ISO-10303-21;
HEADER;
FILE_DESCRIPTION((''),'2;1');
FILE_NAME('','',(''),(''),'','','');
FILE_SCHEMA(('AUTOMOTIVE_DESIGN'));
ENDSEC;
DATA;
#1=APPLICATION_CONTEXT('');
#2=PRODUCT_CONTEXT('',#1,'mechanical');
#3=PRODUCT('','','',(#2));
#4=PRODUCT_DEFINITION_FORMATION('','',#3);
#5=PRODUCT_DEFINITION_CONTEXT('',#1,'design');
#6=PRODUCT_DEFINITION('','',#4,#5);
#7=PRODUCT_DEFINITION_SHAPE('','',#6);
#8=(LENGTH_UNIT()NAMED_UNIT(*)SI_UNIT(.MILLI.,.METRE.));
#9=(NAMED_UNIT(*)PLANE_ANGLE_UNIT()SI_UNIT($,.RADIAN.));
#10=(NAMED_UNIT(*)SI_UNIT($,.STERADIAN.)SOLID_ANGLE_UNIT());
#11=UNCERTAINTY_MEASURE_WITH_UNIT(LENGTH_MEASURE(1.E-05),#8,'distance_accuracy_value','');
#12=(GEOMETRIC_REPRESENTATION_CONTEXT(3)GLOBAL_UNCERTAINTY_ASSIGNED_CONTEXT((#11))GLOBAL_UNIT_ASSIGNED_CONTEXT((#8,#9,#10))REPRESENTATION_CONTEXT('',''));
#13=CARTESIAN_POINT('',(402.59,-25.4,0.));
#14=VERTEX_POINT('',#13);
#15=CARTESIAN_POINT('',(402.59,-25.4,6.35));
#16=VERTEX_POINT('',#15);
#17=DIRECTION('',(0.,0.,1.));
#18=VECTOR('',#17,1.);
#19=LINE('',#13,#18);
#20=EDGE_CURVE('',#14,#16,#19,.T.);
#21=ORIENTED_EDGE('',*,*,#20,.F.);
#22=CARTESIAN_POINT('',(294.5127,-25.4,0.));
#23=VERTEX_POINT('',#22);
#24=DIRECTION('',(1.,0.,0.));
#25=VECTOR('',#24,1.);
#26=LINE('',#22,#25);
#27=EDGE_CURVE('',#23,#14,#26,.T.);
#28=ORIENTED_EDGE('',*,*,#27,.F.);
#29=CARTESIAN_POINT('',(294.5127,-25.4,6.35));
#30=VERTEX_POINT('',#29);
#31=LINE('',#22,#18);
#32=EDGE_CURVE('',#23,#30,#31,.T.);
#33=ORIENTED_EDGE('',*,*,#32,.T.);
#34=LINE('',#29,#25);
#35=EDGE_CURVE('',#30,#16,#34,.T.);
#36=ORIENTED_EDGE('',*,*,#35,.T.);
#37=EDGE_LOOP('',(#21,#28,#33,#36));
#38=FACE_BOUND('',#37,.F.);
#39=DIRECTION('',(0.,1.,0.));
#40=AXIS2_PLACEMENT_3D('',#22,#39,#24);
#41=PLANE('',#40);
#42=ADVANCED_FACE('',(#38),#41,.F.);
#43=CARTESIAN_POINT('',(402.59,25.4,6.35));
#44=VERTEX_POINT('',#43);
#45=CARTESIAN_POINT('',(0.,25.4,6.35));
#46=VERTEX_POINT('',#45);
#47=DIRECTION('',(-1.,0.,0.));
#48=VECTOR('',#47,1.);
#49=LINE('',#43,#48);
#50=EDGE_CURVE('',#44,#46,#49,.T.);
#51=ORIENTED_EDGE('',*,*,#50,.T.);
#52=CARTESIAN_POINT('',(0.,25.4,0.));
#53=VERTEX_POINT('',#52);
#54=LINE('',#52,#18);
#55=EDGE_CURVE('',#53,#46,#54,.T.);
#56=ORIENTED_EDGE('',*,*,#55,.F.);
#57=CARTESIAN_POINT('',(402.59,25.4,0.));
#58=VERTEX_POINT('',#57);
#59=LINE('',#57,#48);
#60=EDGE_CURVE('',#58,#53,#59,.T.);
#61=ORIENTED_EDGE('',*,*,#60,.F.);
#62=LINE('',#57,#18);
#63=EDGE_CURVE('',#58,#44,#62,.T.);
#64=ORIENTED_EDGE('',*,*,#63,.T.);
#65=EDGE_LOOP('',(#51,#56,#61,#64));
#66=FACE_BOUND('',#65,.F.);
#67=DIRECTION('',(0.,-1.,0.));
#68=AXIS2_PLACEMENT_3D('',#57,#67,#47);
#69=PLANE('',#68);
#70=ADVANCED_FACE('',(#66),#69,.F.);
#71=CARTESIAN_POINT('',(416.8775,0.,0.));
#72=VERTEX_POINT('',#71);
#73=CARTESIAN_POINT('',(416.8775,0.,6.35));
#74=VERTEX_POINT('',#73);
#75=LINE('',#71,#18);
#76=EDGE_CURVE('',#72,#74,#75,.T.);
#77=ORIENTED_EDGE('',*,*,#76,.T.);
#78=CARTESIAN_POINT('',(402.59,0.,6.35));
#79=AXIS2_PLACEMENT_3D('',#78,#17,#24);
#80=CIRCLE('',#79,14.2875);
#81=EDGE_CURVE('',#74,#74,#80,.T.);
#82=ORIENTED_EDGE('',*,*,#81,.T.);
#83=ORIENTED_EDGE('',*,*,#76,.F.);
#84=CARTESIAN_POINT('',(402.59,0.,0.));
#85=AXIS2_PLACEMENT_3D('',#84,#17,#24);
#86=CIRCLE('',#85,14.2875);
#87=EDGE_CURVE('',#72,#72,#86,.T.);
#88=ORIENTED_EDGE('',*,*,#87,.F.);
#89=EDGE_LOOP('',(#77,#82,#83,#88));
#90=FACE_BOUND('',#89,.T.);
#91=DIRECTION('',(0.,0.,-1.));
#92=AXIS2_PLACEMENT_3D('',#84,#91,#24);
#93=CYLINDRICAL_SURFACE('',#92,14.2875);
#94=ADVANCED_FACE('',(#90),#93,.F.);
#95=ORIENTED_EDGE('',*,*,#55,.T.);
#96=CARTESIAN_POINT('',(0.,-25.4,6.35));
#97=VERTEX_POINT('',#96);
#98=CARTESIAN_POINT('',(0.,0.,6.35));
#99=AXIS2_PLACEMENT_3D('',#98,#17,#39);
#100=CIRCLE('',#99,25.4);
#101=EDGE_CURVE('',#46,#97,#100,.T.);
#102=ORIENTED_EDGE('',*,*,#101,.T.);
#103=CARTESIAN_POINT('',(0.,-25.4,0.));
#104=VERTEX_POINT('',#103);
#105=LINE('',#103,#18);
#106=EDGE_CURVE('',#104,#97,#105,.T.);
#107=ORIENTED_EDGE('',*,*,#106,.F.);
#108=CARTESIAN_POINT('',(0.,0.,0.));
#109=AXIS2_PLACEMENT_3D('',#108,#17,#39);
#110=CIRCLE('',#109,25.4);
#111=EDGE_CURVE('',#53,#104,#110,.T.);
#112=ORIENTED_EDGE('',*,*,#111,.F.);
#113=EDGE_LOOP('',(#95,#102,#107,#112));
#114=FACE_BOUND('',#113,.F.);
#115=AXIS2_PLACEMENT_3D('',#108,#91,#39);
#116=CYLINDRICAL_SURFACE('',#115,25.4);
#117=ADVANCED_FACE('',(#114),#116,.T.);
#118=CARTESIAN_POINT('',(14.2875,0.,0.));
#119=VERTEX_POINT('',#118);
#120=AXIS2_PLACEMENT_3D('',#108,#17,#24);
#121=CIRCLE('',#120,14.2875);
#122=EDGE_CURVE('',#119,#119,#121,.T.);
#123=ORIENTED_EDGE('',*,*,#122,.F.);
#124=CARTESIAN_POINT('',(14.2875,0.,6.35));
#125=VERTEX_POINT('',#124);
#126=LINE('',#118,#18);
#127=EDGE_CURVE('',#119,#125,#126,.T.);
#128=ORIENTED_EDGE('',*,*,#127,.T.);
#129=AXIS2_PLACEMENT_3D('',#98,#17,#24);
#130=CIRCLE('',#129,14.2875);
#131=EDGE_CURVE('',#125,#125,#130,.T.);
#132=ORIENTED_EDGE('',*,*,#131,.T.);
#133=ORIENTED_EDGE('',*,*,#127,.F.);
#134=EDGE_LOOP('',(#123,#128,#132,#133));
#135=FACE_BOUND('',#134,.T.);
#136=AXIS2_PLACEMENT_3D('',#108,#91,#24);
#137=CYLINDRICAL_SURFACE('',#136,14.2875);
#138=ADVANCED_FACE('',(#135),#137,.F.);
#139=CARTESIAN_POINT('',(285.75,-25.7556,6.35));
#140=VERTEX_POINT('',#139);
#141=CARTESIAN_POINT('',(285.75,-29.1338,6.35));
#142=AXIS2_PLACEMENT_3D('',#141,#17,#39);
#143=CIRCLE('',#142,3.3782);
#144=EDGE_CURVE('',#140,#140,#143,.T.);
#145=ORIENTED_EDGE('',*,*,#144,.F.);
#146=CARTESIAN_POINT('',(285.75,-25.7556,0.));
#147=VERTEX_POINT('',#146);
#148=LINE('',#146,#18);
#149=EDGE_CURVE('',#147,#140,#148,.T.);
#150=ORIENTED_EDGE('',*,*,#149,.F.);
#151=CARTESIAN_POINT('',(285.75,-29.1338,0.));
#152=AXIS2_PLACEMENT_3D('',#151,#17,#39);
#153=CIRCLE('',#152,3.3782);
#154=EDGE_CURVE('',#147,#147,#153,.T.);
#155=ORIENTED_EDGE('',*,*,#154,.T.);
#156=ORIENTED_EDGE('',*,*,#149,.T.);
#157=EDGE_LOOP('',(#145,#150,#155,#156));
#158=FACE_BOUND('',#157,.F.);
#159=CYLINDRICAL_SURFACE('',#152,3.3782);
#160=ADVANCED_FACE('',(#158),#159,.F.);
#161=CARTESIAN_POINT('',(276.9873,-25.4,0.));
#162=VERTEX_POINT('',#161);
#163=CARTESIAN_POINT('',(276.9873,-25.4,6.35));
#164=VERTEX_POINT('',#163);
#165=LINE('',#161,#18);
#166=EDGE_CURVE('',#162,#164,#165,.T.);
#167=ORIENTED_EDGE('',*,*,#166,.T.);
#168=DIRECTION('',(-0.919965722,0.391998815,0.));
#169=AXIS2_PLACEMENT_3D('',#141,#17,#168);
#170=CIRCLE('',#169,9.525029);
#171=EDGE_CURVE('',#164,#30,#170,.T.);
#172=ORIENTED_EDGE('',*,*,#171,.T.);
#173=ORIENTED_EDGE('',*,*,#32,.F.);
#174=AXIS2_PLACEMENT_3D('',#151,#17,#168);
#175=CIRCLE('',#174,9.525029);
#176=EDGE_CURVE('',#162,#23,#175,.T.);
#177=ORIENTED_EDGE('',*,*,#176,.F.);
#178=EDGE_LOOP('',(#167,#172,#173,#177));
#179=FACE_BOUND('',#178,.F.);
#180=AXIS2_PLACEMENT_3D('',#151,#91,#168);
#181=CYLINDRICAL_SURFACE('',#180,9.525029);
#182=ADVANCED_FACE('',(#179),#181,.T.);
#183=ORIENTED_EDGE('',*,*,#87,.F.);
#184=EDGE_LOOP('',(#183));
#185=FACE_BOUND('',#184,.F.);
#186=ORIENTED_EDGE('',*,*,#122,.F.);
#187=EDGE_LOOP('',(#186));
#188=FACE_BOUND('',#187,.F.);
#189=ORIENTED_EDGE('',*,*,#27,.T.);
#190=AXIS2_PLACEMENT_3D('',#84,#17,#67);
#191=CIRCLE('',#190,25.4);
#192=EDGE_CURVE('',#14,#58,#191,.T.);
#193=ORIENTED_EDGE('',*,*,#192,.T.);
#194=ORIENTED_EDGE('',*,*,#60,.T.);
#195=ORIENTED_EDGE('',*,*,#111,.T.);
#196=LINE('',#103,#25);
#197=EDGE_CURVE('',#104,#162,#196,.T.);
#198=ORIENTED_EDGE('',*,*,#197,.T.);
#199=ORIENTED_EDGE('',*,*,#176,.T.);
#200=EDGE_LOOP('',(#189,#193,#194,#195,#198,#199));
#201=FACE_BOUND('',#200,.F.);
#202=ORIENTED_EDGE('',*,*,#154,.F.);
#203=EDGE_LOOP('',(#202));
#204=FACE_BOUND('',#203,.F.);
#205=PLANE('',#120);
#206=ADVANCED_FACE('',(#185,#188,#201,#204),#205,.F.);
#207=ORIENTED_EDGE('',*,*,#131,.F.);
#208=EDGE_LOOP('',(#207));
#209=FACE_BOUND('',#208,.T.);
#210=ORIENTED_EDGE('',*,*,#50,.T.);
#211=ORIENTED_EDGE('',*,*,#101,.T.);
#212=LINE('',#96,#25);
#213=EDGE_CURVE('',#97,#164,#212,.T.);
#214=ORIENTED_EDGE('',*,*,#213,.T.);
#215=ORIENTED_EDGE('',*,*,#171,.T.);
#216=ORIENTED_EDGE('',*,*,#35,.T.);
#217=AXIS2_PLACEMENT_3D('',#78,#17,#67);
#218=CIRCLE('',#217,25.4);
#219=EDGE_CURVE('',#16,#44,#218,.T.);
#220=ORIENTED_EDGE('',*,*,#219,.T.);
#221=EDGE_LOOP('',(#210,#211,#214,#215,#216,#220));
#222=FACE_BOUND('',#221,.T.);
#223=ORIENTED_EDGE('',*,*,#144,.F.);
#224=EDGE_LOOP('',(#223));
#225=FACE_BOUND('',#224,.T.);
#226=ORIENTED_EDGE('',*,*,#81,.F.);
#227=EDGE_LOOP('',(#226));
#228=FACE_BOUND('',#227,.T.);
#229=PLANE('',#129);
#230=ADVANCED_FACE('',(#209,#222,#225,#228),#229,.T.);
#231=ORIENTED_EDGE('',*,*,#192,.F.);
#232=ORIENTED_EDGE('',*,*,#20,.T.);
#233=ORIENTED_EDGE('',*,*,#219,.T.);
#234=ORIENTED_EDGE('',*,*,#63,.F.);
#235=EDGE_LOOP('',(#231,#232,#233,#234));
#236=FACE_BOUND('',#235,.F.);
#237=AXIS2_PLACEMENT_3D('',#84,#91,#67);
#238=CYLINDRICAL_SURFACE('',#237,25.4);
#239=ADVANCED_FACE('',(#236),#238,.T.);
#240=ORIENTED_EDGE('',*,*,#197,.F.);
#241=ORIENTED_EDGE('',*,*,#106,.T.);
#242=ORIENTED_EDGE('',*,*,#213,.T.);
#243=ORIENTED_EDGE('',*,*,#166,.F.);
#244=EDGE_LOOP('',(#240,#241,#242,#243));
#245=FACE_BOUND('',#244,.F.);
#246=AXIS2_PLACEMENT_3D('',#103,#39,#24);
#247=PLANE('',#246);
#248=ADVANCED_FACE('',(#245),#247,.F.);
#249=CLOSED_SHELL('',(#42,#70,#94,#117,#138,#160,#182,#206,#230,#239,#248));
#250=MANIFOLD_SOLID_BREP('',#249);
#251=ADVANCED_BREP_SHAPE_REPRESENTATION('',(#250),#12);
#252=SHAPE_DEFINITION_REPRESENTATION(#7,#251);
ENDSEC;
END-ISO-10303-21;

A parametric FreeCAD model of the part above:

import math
import FreeCAD as App
import Part
import Sketcher
Q = App.Units.Quantity

doc = App.newDocument("Part")
params = doc.addObject("Spreadsheet::Sheet", "Params")
for row, (alias, value) in enumerate([
    ("sketch1_radius", "1 in"),
    ("sketch1_diameter", "1.125 in"),
    ("sketch1_radius2", "0.375 in"),
    ("sketch1_width", "15.85 in"),
    ("pad1_length", "0.25 in"),
    ("sketch2_diameter", "0.266 in"),
    ("hole_diameter", "0.266 in"),
], start=1):
    params.set(f"A{row}", alias)
    params.set(f"B{row}", "=" + value)
    params.setAlias(f"B{row}", alias)

body = doc.addObject("PartDesign::Body", "Body")

sketch1 = doc.addObject("Sketcher::SketchObject", "Sketch")
body.addObject(sketch1)
sketch1.AttachmentSupport = (doc.XY_Plane, [""])
sketch1.MapMode = "FlatFace"
sketch1.addGeometry(Part.ArcOfCircle(Part.Circle(App.Vector(402.59, 0, 0), App.Vector(0, 0, 1), 25.4), math.radians(-90), math.radians(90)), False)
sketch1.addGeometry(Part.LineSegment(App.Vector(402.59, 25.4, 0), App.Vector(0, 25.4, 0)), False)
sketch1.addGeometry(Part.ArcOfCircle(Part.Circle(App.Vector(0, 0, 0), App.Vector(0, 0, 1), 25.4), math.radians(90), math.radians(270)), False)
sketch1.addGeometry(Part.LineSegment(App.Vector(0, -25.4, 0), App.Vector(276.9873, -25.4, 0)), False)
sketch1.addGeometry(Part.ArcOfCircle(Part.Circle(App.Vector(285.75, -29.1338, 0), App.Vector(0, 0, 1), 9.525029), math.radians(156.921071), math.radians(383.078929)), False)
sketch1.addGeometry(Part.LineSegment(App.Vector(294.5127, -25.4, 0), App.Vector(402.59, -25.4, 0)), False)
sketch1.addGeometry(Part.Circle(App.Vector(0, 0, 0), App.Vector(0, 0, 1), 14.2875), False)
sketch1.addGeometry(Part.Circle(App.Vector(402.59, 0, 0), App.Vector(0, 0, 1), 14.2875), False)
sketch1.addConstraint(Sketcher.Constraint("Tangent", 0, 2, 1, 1))
sketch1.addConstraint(Sketcher.Constraint("Tangent", 1, 2, 2, 1))
sketch1.addConstraint(Sketcher.Constraint("Tangent", 2, 2, 3, 1))
sketch1.addConstraint(Sketcher.Constraint("Coincident", 3, 2, 4, 1))
sketch1.addConstraint(Sketcher.Constraint("Coincident", 4, 2, 5, 1))
sketch1.addConstraint(Sketcher.Constraint("Tangent", 5, 2, 0, 1))
sketch1.addConstraint(Sketcher.Constraint("Horizontal", 1))
sketch1.addConstraint(Sketcher.Constraint("Horizontal", 3))
sketch1.addConstraint(Sketcher.Constraint("Horizontal", 5))
sketch1.addConstraint(Sketcher.Constraint("Coincident", 2, 3, -1, 1))
sketch1.addConstraint(Sketcher.Constraint("Coincident", 6, 3, -1, 1))
sketch1.addConstraint(Sketcher.Constraint("Coincident", 7, 3, 0, 3))
sketch1.addConstraint(Sketcher.Constraint("Equal", 0, 2))
sketch1.addConstraint(Sketcher.Constraint("Equal", 6, 7))
sketch1.addConstraint(Sketcher.Constraint("Radius", 0, Q("1 in")))
sketch1.addConstraint(Sketcher.Constraint("Diameter", 6, Q("1.125 in")))
sketch1.addConstraint(Sketcher.Constraint("Radius", 4, Q("0.375 in")))
sketch1.addConstraint(Sketcher.Constraint("DistanceX", 1, 2, 1, 1, Q("15.85 in")))
sketch1.addConstraint(Sketcher.Constraint("DistanceX", -1, 1, 4, 3, Q("11.25 in")))
sketch1.addConstraint(Sketcher.Constraint("DistanceY", 4, 3, -1, 1, Q("1.147 in")))
sketch1.setExpression("Constraints[14]", "Params.sketch1_radius")
sketch1.setExpression("Constraints[15]", "Params.sketch1_diameter")
sketch1.setExpression("Constraints[16]", "Params.sketch1_radius2")
sketch1.setExpression("Constraints[17]", "Params.sketch1_width")
pad1 = doc.addObject("PartDesign::Pad", "Pad")
body.addObject(pad1)
pad1.Profile = sketch1
pad1.setExpression("Length", "Params.pad1_length")

sketch2 = doc.addObject("Sketcher::SketchObject", "Sketch001")
body.addObject(sketch2)
sketch2.AttachmentSupport = (doc.XY_Plane, [""])
sketch2.MapMode = "FlatFace"
sketch2.addGeometry(Part.Circle(App.Vector(285.75, -29.1338, 0), App.Vector(0, 0, 1), 3.3782), False)
sketch2.addConstraint(Sketcher.Constraint("Diameter", 0, Q("0.266 in")))
sketch2.addConstraint(Sketcher.Constraint("DistanceX", -1, 1, 0, 3, Q("11.25 in")))
sketch2.addConstraint(Sketcher.Constraint("DistanceY", 0, 3, -1, 1, Q("1.147 in")))
sketch2.setExpression("Constraints[0]", "Params.sketch2_diameter")
doc.recompute()
hole = doc.addObject("PartDesign::Hole", "Hole")
body.addObject(hole)
hole.Profile = sketch2
hole.ThreadType = "None"
hole.setExpression("Diameter", "Params.hole_diameter")
hole.DepthType = "ThroughAll"
hole.Reversed = True

doc.recompute()
